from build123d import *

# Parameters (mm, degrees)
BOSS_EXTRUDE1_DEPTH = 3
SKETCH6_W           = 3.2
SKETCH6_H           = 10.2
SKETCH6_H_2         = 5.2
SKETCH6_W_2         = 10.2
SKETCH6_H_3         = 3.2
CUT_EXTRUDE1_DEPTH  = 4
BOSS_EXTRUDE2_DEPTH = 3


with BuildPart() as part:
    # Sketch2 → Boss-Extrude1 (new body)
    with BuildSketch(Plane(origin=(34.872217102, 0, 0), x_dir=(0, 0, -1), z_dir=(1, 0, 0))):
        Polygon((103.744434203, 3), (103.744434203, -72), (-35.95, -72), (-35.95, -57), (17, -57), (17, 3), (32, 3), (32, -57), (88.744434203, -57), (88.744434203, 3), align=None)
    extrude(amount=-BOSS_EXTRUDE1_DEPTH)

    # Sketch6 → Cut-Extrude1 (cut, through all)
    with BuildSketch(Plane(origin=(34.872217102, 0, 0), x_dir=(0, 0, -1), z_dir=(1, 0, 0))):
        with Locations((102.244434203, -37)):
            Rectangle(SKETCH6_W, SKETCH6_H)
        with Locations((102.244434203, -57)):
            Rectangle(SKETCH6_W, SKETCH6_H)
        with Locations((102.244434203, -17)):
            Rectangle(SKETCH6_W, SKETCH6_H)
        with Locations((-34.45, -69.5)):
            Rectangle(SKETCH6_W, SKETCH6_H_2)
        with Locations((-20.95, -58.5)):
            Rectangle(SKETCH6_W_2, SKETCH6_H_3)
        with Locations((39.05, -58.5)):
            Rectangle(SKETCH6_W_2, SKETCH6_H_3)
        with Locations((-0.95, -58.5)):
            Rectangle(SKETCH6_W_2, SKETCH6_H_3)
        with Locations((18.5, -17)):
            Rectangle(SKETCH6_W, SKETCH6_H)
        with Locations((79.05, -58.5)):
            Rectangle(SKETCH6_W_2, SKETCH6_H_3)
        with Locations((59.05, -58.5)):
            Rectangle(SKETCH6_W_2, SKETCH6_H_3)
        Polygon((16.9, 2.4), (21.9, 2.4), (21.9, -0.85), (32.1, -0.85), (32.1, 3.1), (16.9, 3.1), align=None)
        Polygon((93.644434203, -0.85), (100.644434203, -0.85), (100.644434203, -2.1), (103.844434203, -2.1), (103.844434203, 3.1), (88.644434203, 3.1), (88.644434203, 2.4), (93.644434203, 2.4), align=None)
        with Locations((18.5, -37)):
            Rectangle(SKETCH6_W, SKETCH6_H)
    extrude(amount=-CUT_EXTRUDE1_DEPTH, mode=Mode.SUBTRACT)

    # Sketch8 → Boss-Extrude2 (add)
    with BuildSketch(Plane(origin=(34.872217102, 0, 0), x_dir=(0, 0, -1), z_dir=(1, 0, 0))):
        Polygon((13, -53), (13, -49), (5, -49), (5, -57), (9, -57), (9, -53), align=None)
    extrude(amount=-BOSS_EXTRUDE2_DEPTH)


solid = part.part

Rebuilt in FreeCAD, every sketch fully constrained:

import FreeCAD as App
import Part
import Sketcher

V = App.Vector
Q = App.Units.Quantity

doc = App.newDocument("Part")
body = doc.addObject("PartDesign::Body", "Body")

sketch1 = body.newObject("Sketcher::SketchObject", "Sketch")
sketch1.AttachmentSupport = (doc.getObject("YZ_Plane"), [""])
sketch1.MapMode = "FlatFace"
sketch1.AttachmentOffset = App.Placement(V(0, 0, 34.872217), App.Rotation())
sketch1.addGeometry([
    Part.LineSegment(V(-72, -104, 0), V(3, -104, 0)),
    Part.LineSegment(V(3, -104, 0), V(3, -89, 0)),
    Part.LineSegment(V(3, -89, 0), V(-57, -89, 0)),
    Part.LineSegment(V(-57, -89, 0), V(-57, -32, 0)),
    Part.LineSegment(V(-57, -32, 0), V(3, -32, 0)),
    Part.LineSegment(V(3, -32, 0), V(3, -17, 0)),
    Part.LineSegment(V(3, -17, 0), V(-57, -17, 0)),
    Part.LineSegment(V(-57, -17, 0), V(-57, 36, 0)),
    Part.LineSegment(V(-57, 36, 0), V(-72, 36, 0)),
    Part.LineSegment(V(-72, 36, 0), V(-72, -104, 0)),
], False)
sketch1.addConstraint([
    Sketcher.Constraint("Coincident", 0, 2, 1, 1),
    Sketcher.Constraint("Coincident", 1, 2, 2, 1),
    Sketcher.Constraint("Coincident", 2, 2, 3, 1),
    Sketcher.Constraint("Coincident", 3, 2, 4, 1),
    Sketcher.Constraint("Coincident", 4, 2, 5, 1),
    Sketcher.Constraint("Coincident", 5, 2, 6, 1),
    Sketcher.Constraint("Coincident", 6, 2, 7, 1),
    Sketcher.Constraint("Coincident", 7, 2, 8, 1),
    Sketcher.Constraint("Coincident", 8, 2, 9, 1),
    Sketcher.Constraint("Coincident", 9, 2, 0, 1),
    Sketcher.Constraint("Horizontal", 0),
    Sketcher.Constraint("Vertical", 1),
    Sketcher.Constraint("Horizontal", 2),
    Sketcher.Constraint("Vertical", 3),
    Sketcher.Constraint("Horizontal", 4),
    Sketcher.Constraint("Vertical", 5),
    Sketcher.Constraint("Horizontal", 6),
    Sketcher.Constraint("Vertical", 7),
    Sketcher.Constraint("Horizontal", 8),
    Sketcher.Constraint("Vertical", 9),
    Sketcher.Constraint("Vertical", 1, 2, 4, 2),
    Sketcher.Constraint("Vertical", 3, 2, 6, 2),
    Sketcher.Constraint("Equal", 8, 1),
    Sketcher.Constraint("Equal", 1, 5),
    Sketcher.Constraint("DistanceX", 0, 1, 0, 2, Q("75 mm")),
    Sketcher.Constraint("DistanceX", 2, 2, 2, 1, Q("60 mm")),
    Sketcher.Constraint("DistanceX", -1, 1, 0, 2, Q("3 mm")),
    Sketcher.Constraint("DistanceY", 3, 2, -1, 1, Q("32 mm")),
    Sketcher.Constraint("DistanceY", 7, 1, 7, 2, Q("52.95 mm")),
    Sketcher.Constraint("DistanceY", 3, 1, 3, 2, Q("56.744434 mm")),
])
pad1 = body.newObject("PartDesign::Pad", "Pad")
pad1.Profile = sketch1
pad1.Length = 3
pad1.Reversed = True

sketch2 = body.newObject("Sketcher::SketchObject", "Sketch001")
sketch2.AttachmentSupport = (doc.getObject("YZ_Plane"), [""])
sketch2.MapMode = "FlatFace"
sketch2.AttachmentOffset = App.Placement(V(0, 0, 34.872217), App.Rotation())
sketch2.addGeometry([
    Part.LineSegment(V(-31.9, -100.6, 0), V(-42.1, -100.6, 0)),
    Part.LineSegment(V(-42.1, -100.6, 0), V(-42.1, -103.8, 0)),
    Part.LineSegment(V(-42.1, -103.8, 0), V(-31.9, -103.8, 0)),
    Part.LineSegment(V(-31.9, -103.8, 0), V(-31.9, -100.6, 0)),
    Part.LineSegment(V(-51.9, -100.6, 0), V(-62.1, -100.6, 0)),
    Part.LineSegment(V(-62.1, -100.6, 0), V(-62.1, -103.8, 0)),
    Part.LineSegment(V(-62.1, -103.8, 0), V(-51.9, -103.8, 0)),
    Part.LineSegment(V(-51.9, -103.8, 0), V(-51.9, -100.6, 0)),
    Part.LineSegment(V(-11.9, -100.6, 0), V(-22.1, -100.6, 0)),
    Part.LineSegment(V(-22.1, -100.6, 0), V(-22.1, -103.8, 0)),
    Part.LineSegment(V(-22.1, -103.8, 0), V(-11.9, -103.8, 0)),
    Part.LineSegment(V(-11.9, -103.8, 0), V(-11.9, -100.6, 0)),
    Part.LineSegment(V(-66.9, 36, 0), V(-72.1, 36, 0)),
    Part.LineSegment(V(-72.1, 36, 0), V(-72.1, 32.9, 0)),
    Part.LineSegment(V(-72.1, 32.9, 0), V(-66.9, 32.9, 0)),
    Part.LineSegment(V(-66.9, 32.9, 0), V(-66.9, 36, 0)),
    Part.LineSegment(V(-56.9, 26.1, 0), V(-60.1, 26.1, 0)),
    Part.LineSegment(V(-60.1, 26.1, 0), V(-60.1, 15.8, 0)),
    Part.LineSegment(V(-60.1, 15.8, 0), V(-56.9, 15.8, 0)),
    Part.LineSegment(V(-56.9, 15.8, 0), V(-56.9, 26.1, 0)),
    Part.LineSegment(V(-56.9, -34, 0), V(-60.1, -34, 0)),
    Part.LineSegment(V(-60.1, -34, 0), V(-60.1, -44.1, 0)),
    Part.LineSegment(V(-60.1, -44.1, 0), V(-56.9, -44.1, 0)),
    Part.LineSegment(V(-56.9, -44.1, 0), V(-56.9, -34, 0)),
    Part.LineSegment(V(-56.9, 6, 0), V(-60.1, 6, 0)),
    Part.LineSegment(V(-60.1, 6, 0), V(-60.1, -4.2, 0)),
    Part.LineSegment(V(-60.1, -4.2, 0), V(-56.9, -4.2, 0)),
    Part.LineSegment(V(-56.9, -4.2, 0), V(-56.9, 6, 0)),
    Part.LineSegment(V(-11.9, -16.9, 0), V(-22.1, -16.9, 0)),
    Part.LineSegment(V(-22.1, -16.9, 0), V(-22.1, -20.1, 0)),
    Part.LineSegment(V(-22.1, -20.1, 0), V(-11.9, -20.1, 0)),
    Part.LineSegment(V(-11.9, -20.1, 0), V(-11.9, -16.9, 0)),
    Part.LineSegment(V(-56.9, -74, 0), V(-60.1, -74, 0)),
    Part.LineSegment(V(-60.1, -74, 0), V(-60.1, -84.2, 0)),
    Part.LineSegment(V(-60.1, -84.2, 0), V(-56.9, -84.2, 0)),
    Part.LineSegment(V(-56.9, -84.2, 0), V(-56.9, -74, 0)),
    Part.LineSegment(V(-56.9, -54, 0), V(-60.1, -54, 0)),
    Part.LineSegment(V(-60.1, -54, 0), V(-60.1, -64.2, 0)),
    Part.LineSegment(V(-60.1, -64.2, 0), V(-56.9, -64.2, 0)),
    Part.LineSegment(V(-56.9, -64.2, 0), V(-56.9, -54, 0)),
    Part.LineSegment(V(2.4, -16.9, 0), V(2.4, -21.9, 0)),
    Part.LineSegment(V(2.4, -21.9, 0), V(-0.8, -21.9, 0)),
    Part.LineSegment(V(-0.8, -21.9, 0), V(-0.8, -32.1, 0)),
    Part.LineSegment(V(-0.8, -32.1, 0), V(3.1, -32.1, 0)),
    Part.LineSegment(V(3.1, -32.1, 0), V(3.1, -16.9, 0)),
    Part.LineSegment(V(3.1, -16.9, 0), V(2.4, -16.9, 0)),
    Part.LineSegment(V(-0.8, -93.6, 0), V(-0.8, -100.6, 0)),
    Part.LineSegment(V(-0.8, -100.6, 0), V(-2.1, -100.6, 0)),
    Part.LineSegment(V(-2.1, -100.6, 0), V(-2.1, -103.8, 0)),
    Part.LineSegment(V(-2.1, -103.8, 0), V(3.1, -103.8, 0)),
    Part.LineSegment(V(3.1, -103.8, 0), V(3.1, -88.6, 0)),
    Part.LineSegment(V(3.1, -88.6, 0), V(2.4, -88.6, 0)),
    Part.LineSegment(V(2.4, -88.6, 0), V(2.4, -93.6, 0)),
    Part.LineSegment(V(2.4, -93.6, 0), V(-0.8, -93.6, 0)),
    Part.LineSegment(V(-31.9, -16.9, 0), V(-42.1, -16.9, 0)),
    Part.LineSegment(V(-42.1, -16.9, 0), V(-42.1, -20.1, 0)),
    Part.LineSegment(V(-42.1, -20.1, 0), V(-31.9, -20.1, 0)),
    Part.LineSegment(V(-31.9, -20.1, 0), V(-31.9, -16.9, 0)),
], False)
sketch2.addConstraint([
    Sketcher.Constraint("Coincident", 0, 2, 1, 1),
    Sketcher.Constraint("Coincident", 1, 2, 2, 1),
    Sketcher.Constraint("Coincident", 2, 2, 3, 1),
    Sketcher.Constraint("Coincident", 3, 2, 0, 1),
    Sketcher.Constraint("Coincident", 4, 2, 5, 1),
    Sketcher.Constraint("Coincident", 5, 2, 6, 1),
    Sketcher.Constraint("Coincident", 6, 2, 7, 1),
    Sketcher.Constraint("Coincident", 7, 2, 4, 1),
    Sketcher.Constraint("Coincident", 8, 2, 9, 1),
    Sketcher.Constraint("Coincident", 9, 2, 10, 1),
    Sketcher.Constraint("Coincident", 10, 2, 11, 1),
    Sketcher.Constraint("Coincident", 11, 2, 8, 1),
    Sketcher.Constraint("Coincident", 12, 2, 13, 1),
    Sketcher.Constraint("Coincident", 13, 2, 14, 1),
    Sketcher.Constraint("Coincident", 14, 2, 15, 1),
    Sketcher.Constraint("Coincident", 15, 2, 12, 1),
    Sketcher.Constraint("Coincident", 16, 2, 17, 1),
    Sketcher.Constraint("Coincident", 17, 2, 18, 1),
    Sketcher.Constraint("Coincident", 18, 2, 19, 1),
    Sketcher.Constraint("Coincident", 19, 2, 16, 1),
    Sketcher.Constraint("Coincident", 20, 2, 21, 1),
    Sketcher.Constraint("Coincident", 21, 2, 22, 1),
    Sketcher.Constraint("Coincident", 22, 2, 23, 1),
    Sketcher.Constraint("Coincident", 23, 2, 20, 1),
    Sketcher.Constraint("Coincident", 24, 2, 25, 1),
    Sketcher.Constraint("Coincident", 25, 2, 26, 1),
    Sketcher.Constraint("Coincident", 26, 2, 27, 1),
    Sketcher.Constraint("Coincident", 27, 2, 24, 1),
    Sketcher.Constraint("Coincident", 28, 2, 29, 1),
    Sketcher.Constraint("Coincident", 29, 2, 30, 1),
    Sketcher.Constraint("Coincident", 30, 2, 31, 1),
    Sketcher.Constraint("Coincident", 31, 2, 28, 1),
    Sketcher.Constraint("Coincident", 32, 2, 33, 1),
    Sketcher.Constraint("Coincident", 33, 2, 34, 1),
    Sketcher.Constraint("Coincident", 34, 2, 35, 1),
    Sketcher.Constraint("Coincident", 35, 2, 32, 1),
    Sketcher.Constraint("Coincident", 36, 2, 37, 1),
    Sketcher.Constraint("Coincident", 37, 2, 38, 1),
    Sketcher.Constraint("Coincident", 38, 2, 39, 1),
    Sketcher.Constraint("Coincident", 39, 2, 36, 1),
    Sketcher.Constraint("Coincident", 40, 2, 41, 1),
    Sketcher.Constraint("Coincident", 41, 2, 42, 1),
    Sketcher.Constraint("Coincident", 42, 2, 43, 1),
    Sketcher.Constraint("Coincident", 43, 2, 44, 1),
    Sketcher.Constraint("Coincident", 44, 2, 45, 1),
    Sketcher.Constraint("Coincident", 45, 2, 40, 1),
    Sketcher.Constraint("Coincident", 46, 2, 47, 1),
    Sketcher.Constraint("Coincident", 47, 2, 48, 1),
    Sketcher.Constraint("Coincident", 48, 2, 49, 1),
    Sketcher.Constraint("Coincident", 49, 2, 50, 1),
    Sketcher.Constraint("Coincident", 50, 2, 51, 1),
    Sketcher.Constraint("Coincident", 51, 2, 52, 1),
    Sketcher.Constraint("Coincident", 52, 2, 53, 1),
    Sketcher.Constraint("Coincident", 53, 2, 46, 1),
    Sketcher.Constraint("Coincident", 54, 2, 55, 1),
    Sketcher.Constraint("Coincident", 55, 2, 56, 1),
    Sketcher.Constraint("Coincident", 56, 2, 57, 1),
    Sketcher.Constraint("Coincident", 57, 2, 54, 1),
    Sketcher.Constraint("Horizontal", 0),
    Sketcher.Constraint("Vertical", 1),
    Sketcher.Constraint("Horizontal", 2),
    Sketcher.Constraint("Vertical", 3),
    Sketcher.Constraint("Horizontal", 4),
    Sketcher.Constraint("Vertical", 5),
    Sketcher.Constraint("Horizontal", 6),
    Sketcher.Constraint("Vertical", 7),
    Sketcher.Constraint("Horizontal", 8),
    Sketcher.Constraint("Vertical", 9),
    Sketcher.Constraint("Horizontal", 10),
    Sketcher.Constraint("Vertical", 11),
    Sketcher.Constraint("Horizontal", 12),
    Sketcher.Constraint("Vertical", 13),
    Sketcher.Constraint("Horizontal", 14),
    Sketcher.Constraint("Vertical", 15),
    Sketcher.Constraint("Horizontal", 16),
    Sketcher.Constraint("Vertical", 17),
    Sketcher.Constraint("Horizontal", 18),
    Sketcher.Constraint("Vertical", 19),
    Sketcher.Constraint("Horizontal", 20),
    Sketcher.Constraint("Vertical", 21),
    Sketcher.Constraint("Horizontal", 22),
    Sketcher.Constraint("Vertical", 23),
    Sketcher.Constraint("Horizontal", 24),
    Sketcher.Constraint("Vertical", 25),
    Sketcher.Constraint("Horizontal", 26),
    Sketcher.Constraint("Vertical", 27),
    Sketcher.Constraint("Horizontal", 28),
    Sketcher.Constraint("Vertical", 29),
    Sketcher.Constraint("Horizontal", 30),
    Sketcher.Constraint("Vertical", 31),
    Sketcher.Constraint("Horizontal", 32),
    Sketcher.Constraint("Vertical", 33),
    Sketcher.Constraint("Horizontal", 34),
    Sketcher.Constraint("Vertical", 35),
    Sketcher.Constraint("Horizontal", 36),
    Sketcher.Constraint("Vertical", 37),
    Sketcher.Constraint("Horizontal", 38),
    Sketcher.Constraint("Vertical", 39),
    Sketcher.Constraint("Vertical", 40),
    Sketcher.Constraint("Horizontal", 41),
    Sketcher.Constraint("Vertical", 42),
    Sketcher.Constraint("Horizontal", 43),
    Sketcher.Constraint("Vertical", 44),
    Sketcher.Constraint("Horizontal", 45),
    Sketcher.Constraint("Vertical", 46),
    Sketcher.Constraint("Horizontal", 47),
    Sketcher.Constraint("Vertical", 48),
    Sketcher.Constraint("Horizontal", 49),
    Sketcher.Constraint("Vertical", 50),
    Sketcher.Constraint("Horizontal", 51),
    Sketcher.Constraint("Vertical", 52),
    Sketcher.Constraint("Horizontal", 53),
    Sketcher.Constraint("Horizontal", 54),
    Sketcher.Constraint("Vertical", 55),
    Sketcher.Constraint("Horizontal", 56),
    Sketcher.Constraint("Vertical", 57),
    Sketcher.Constraint("Horizontal", 3, 2, 4, 2),
    Sketcher.Constraint("Horizontal", 2, 2, 5, 2),
    Sketcher.Constraint("Horizontal", 7, 2, 8, 2),
    Sketcher.Constraint("Horizontal", 6, 2, 9, 2),
    Sketcher.Constraint("Horizontal", 31, 2, 44, 2),
    Sketcher.Constraint("Horizontal", 11, 2, 46, 2),
    Sketcher.Constraint("Horizontal", 10, 2, 48, 2),
    Sketcher.Constraint("Horizontal", 45, 2, 54, 2),
    Sketcher.Constraint("Horizontal", 30, 2, 55, 2),
    Sketcher.Constraint("Vertical", 17, 2, 20, 2),
    Sketcher.Constraint("Vertical", 19, 2, 22, 2),
    Sketcher.Constraint("Vertical", 21, 2, 24, 2),
    Sketcher.Constraint("Vertical", 23, 2, 26, 2),
    Sketcher.Constraint("Vertical", 9, 2, 28, 2),
    Sketcher.Constraint("Vertical", 11, 2, 30, 2),
    Sketcher.Constraint("Vertical", 25, 2, 32, 2),
    Sketcher.Constraint("Vertical", 27, 2, 34, 2),
    Sketcher.Constraint("Vertical", 33, 2, 36, 2),
    Sketcher.Constraint("Vertical", 35, 2, 38, 2),
    Sketcher.Constraint("Vertical", 42, 2, 46, 2),
    Sketcher.Constraint("Vertical", 44, 2, 49, 2),
    Sketcher.Constraint("Vertical", 45, 2, 51, 2),
    Sketcher.Constraint("Vertical", 1, 2, 54, 2),
    Sketcher.Constraint("Vertical", 3, 2, 56, 2),
    Sketcher.Constraint("Equal", 2, 4),
    Sketcher.Constraint("Equal", 6, 8),
    Sketcher.Constraint("Equal", 14, 49),
    Sketcher.Constraint("Equal", 38, 1),
    Sketcher.Constraint("Equal", 11, 13),
    Sketcher.Constraint("Equal", 56, 17),
    Sketcher.Constraint("Equal", 19, 21),
    Sketcher.Constraint("Equal", 23, 25),
    Sketcher.Constraint("Equal", 15, 29),
    Sketcher.Constraint("Equal", 27, 33),
    Sketcher.Constraint("Equal", 35, 37),
    Sketcher.Constraint("Equal", 39, 42),
    Sketcher.Constraint("Equal", 44, 50),
    Sketcher.Constraint("Equal", 40, 52),
    Sketcher.Constraint("DistanceY", 40, 2, 40, 1, Q("5 mm")),
    Sketcher.Constraint("DistanceY", 46, 2, 46, 1, Q("7 mm")),
    Sketcher.Constraint("DistanceX", 0, 2, 0, 1, Q("10.2 mm")),
    Sketcher.Constraint("DistanceX", 12, 2, 12, 1, Q("5.2 mm")),
    Sketcher.Constraint("DistanceX", 45, 2, 45, 1, Q("0.7 mm")),
    Sketcher.Constraint("DistanceX", 4, 2, 0, 2, Q("20 mm")),
    Sketcher.Constraint("DistanceX", 0, 2, 8, 2, Q("20 mm")),
    Sketcher.Constraint("DistanceX", 12, 2, 4, 2, Q("10 mm")),
    Sketcher.Constraint("DistanceY", 16, 2, 15, 2, Q("10 mm")),
    Sketcher.Constraint("DistanceX", 13, 2, 16, 2, Q("12 mm")),
    Sketcher.Constraint("DistanceY", 20, 2, 16, 2, Q("60 mm")),
    Sketcher.Constraint("DistanceY", 24, 2, 16, 2, Q("20 mm")),
    Sketcher.Constraint("DistanceY", 36, 2, 20, 2, Q("20 mm")),
    Sketcher.Constraint("DistanceY", 32, 2, 36, 2, Q("20 mm")),
    Sketcher.Constraint("DistanceX", 30, 2, 43, 2, Q("15 mm")),
    Sketcher.Constraint("DistanceX", 41, 2, 41, 1, Q("3.25 mm")),
    Sketcher.Constraint("DistanceX", 0, 2, -1, 1, Q("42.1 mm")),
    Sketcher.Constraint("DistanceY", 28, 2, -1, 1, Q("16.9 mm")),
    Sketcher.Constraint("DistanceY", -1, 1, 12, 2, Q("36.05 mm")),
    Sketcher.Constraint("DistanceY", 0, 2, -1, 1, Q("100.644434 mm")),
])
pocket1 = body.newObject("PartDesign::Pocket", "Pocket")
pocket1.Profile = sketch2
pocket1.Type = "ThroughAll"

sketch3 = body.newObject("Sketcher::SketchObject", "Sketch002")
sketch3.AttachmentSupport = (doc.getObject("YZ_Plane"), [""])
sketch3.MapMode = "FlatFace"
sketch3.AttachmentOffset = App.Placement(V(0, 0, 34.872217), App.Rotation())
sketch3.addGeometry([
    Part.LineSegment(V(-53, -13, 0), V(-49, -13, 0)),
    Part.LineSegment(V(-49, -13, 0), V(-49, -5, 0)),
    Part.LineSegment(V(-49, -5, 0), V(-57, -5, 0)),
    Part.LineSegment(V(-57, -5, 0), V(-57, -9, 0)),
    Part.LineSegment(V(-57, -9, 0), V(-53, -9, 0)),
    Part.LineSegment(V(-53, -9, 0), V(-53, -13, 0)),
], False)
sketch3.addConstraint([
    Sketcher.Constraint("Coincident", 0, 2, 1, 1),
    Sketcher.Constraint("Coincident", 1, 2, 2, 1),
    Sketcher.Constraint("Coincident", 2, 2, 3, 1),
    Sketcher.Constraint("Coincident", 3, 2, 4, 1),
    Sketcher.Constraint("Coincident", 4, 2, 5, 1),
    Sketcher.Constraint("Coincident", 5, 2, 0, 1),
    Sketcher.Constraint("Horizontal", 0),
    Sketcher.Constraint("Vertical", 1),
    Sketcher.Constraint("Horizontal", 2),
    Sketcher.Constraint("Vertical", 3),
    Sketcher.Constraint("Horizontal", 4),
    Sketcher.Constraint("Vertical", 5),
    Sketcher.Constraint("Equal", 0, 4),
    Sketcher.Constraint("Equal", 2, 1),
    Sketcher.Constraint("Equal", 4, 3),
    Sketcher.Constraint("DistanceX", 0, 1, 0, 2, Q("4 mm")),
    Sketcher.Constraint("DistanceX", 0, 2, -1, 1, Q("49 mm")),
    Sketcher.Constraint("DistanceY", 0, 2, -1, 1, Q("13 mm")),
])
pad2 = body.newObject("PartDesign::Pad", "Pad001")
pad2.Profile = sketch3
pad2.Length = 3
pad2.Reversed = True

doc.recompute()
